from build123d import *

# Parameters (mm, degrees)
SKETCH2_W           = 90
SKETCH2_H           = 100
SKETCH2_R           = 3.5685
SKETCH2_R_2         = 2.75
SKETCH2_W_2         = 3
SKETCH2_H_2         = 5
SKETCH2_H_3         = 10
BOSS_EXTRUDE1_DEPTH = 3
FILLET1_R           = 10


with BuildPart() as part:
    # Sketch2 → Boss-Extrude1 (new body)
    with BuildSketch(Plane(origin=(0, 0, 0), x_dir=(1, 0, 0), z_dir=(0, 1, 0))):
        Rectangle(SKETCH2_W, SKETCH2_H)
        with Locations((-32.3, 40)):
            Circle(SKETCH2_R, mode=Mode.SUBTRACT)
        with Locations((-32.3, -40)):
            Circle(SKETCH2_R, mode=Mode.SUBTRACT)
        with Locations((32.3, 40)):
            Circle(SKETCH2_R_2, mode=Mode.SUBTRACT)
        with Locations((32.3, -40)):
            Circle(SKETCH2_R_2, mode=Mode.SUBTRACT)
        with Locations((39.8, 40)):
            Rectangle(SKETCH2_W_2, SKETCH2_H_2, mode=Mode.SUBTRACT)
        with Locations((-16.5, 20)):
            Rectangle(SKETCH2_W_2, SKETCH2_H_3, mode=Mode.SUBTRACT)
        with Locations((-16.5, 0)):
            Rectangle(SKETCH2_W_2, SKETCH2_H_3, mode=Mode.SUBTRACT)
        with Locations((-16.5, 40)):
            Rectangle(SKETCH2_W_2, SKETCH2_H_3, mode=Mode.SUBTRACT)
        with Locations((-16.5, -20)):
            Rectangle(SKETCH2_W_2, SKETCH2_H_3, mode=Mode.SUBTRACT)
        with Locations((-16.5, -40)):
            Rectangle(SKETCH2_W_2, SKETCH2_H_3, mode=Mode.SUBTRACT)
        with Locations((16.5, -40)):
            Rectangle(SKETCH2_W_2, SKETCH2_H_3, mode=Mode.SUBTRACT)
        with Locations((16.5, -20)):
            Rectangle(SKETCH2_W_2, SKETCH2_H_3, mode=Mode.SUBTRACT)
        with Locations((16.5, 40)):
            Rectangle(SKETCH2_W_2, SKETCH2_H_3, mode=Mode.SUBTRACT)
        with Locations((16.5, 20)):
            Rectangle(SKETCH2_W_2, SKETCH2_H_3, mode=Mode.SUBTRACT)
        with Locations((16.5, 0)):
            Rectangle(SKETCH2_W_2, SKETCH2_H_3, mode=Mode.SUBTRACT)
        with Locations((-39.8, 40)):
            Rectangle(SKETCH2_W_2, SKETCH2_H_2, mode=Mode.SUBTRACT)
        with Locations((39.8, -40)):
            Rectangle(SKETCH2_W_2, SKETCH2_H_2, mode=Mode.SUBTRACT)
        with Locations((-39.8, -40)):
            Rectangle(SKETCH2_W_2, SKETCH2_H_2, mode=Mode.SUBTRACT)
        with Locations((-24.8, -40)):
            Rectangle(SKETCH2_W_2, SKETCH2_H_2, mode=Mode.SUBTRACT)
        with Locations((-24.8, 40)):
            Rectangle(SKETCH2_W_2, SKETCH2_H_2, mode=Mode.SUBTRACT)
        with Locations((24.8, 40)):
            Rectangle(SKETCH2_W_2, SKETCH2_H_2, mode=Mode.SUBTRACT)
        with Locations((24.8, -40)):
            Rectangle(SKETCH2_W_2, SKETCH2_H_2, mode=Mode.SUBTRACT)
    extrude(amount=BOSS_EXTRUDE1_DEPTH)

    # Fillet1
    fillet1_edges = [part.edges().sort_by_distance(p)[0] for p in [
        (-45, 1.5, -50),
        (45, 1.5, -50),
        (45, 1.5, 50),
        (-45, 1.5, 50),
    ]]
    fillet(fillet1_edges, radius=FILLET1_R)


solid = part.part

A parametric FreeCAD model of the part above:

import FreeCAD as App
import Part
import Sketcher
Q = App.Units.Quantity


def edges_at(feature, points):
    """Names of the edges that pass closest to the given points."""
    edges = feature.Shape.Edges
    near = lambda p: min(range(len(edges)), key=lambda i: edges[i].distToShape(Part.Vertex(*p))[0])
    return sorted({f"Edge{near(p) + 1}" for p in points})


def add_polygon(sketch, points):
    """Adds a closed chain of lines whose ends are joined by coincident constraints."""
    first, n = sketch.GeometryCount, len(points)
    for a, b in zip(points, points[1:] + points[:1]):
        sketch.addGeometry(Part.LineSegment(App.Vector(*a, 0), App.Vector(*b, 0)), False)
    for i in range(n):
        sketch.addConstraint(Sketcher.Constraint("Coincident", first + i, 2, first + (i + 1) % n, 1))

doc = App.newDocument("Part")
params = doc.addObject("Spreadsheet::Sheet", "Params")
for row, (alias, value) in enumerate([
    ("sketch1_diameter", "5.5 mm"),
    ("sketch1_width", "90 mm"),
    ("sketch1_width2", "3 mm"),
    ("sketch1_height", "100 mm"),
    ("sketch1_height2", "5 mm"),
    ("pad1_length", "3 mm"),
    ("fillet_radius", "10 mm"),
], start=1):
    params.set(f"A{row}", alias)
    params.set(f"B{row}", "=" + value)
    params.setAlias(f"B{row}", alias)

body = doc.addObject("PartDesign::Body", "Body")

# Sketch on XZ plane
sketch1 = doc.addObject("Sketcher::SketchObject", "Sketch")
body.addObject(sketch1)
sketch1.AttachmentSupport = (doc.XZ_Plane, [""])
sketch1.MapMode = "FlatFace"
add_polygon(sketch1, [(-45, -50), (-45, 50), (45, 50), (45, -50)])  # lines 0-3
add_polygon(sketch1, [(-38.3, 42.5), (-41.3, 42.5), (-41.3, 37.5), (-38.3, 37.5)])  # lines 4-7
sketch1.addGeometry(Part.Circle(App.Vector(-32.3, 40, 0), App.Vector(0, 0, 1), 3.6), False)  # 8
add_polygon(sketch1, [(-23.3, 42.5), (-26.3, 42.5), (-26.3, 37.5), (-23.3, 37.5)])  # lines 9-12
add_polygon(sketch1, [(-15, 45), (-18, 45), (-18, 35), (-15, 35)])  # lines 13-16
add_polygon(sketch1, [(-15, 25), (-18, 25), (-18, 15), (-15, 15)])  # lines 17-20
add_polygon(sketch1, [(18, 45), (15, 45), (15, 35), (18, 35)])  # lines 21-24
add_polygon(sketch1, [(26.3, 42.5), (23.3, 42.5), (23.3, 37.5), (26.3, 37.5)])  # lines 25-28
sketch1.addGeometry(Part.Circle(App.Vector(32.3, 40, 0), App.Vector(0, 0, 1), 2.8), False)  # 29
add_polygon(sketch1, [(41.3, 42.5), (38.3, 42.5), (38.3, 37.5), (41.3, 37.5)])  # lines 30-33
add_polygon(sketch1, [(18, 25), (15, 25), (15, 15), (18, 15)])  # lines 34-37
add_polygon(sketch1, [(-15, 5), (-18, 5), (-18, -5), (-15, -5)])  # lines 38-41
add_polygon(sketch1, [(-15, -15), (-18, -15), (-18, -25), (-15, -25)])  # lines 42-45
add_polygon(sketch1, [(-38.3, -37.5), (-41.3, -37.5), (-41.3, -42.5), (-38.3, -42.5)])  # lines 46-49
sketch1.addGeometry(Part.Circle(App.Vector(-32.3, -40, 0), App.Vector(0, 0, 1), 3.6), False)  # 50
add_polygon(sketch1, [(-23.3, -37.5), (-26.3, -37.5), (-26.3, -42.5), (-23.3, -42.5)])  # lines 51-54
add_polygon(sketch1, [(-15, -35), (-18, -35), (-18, -45), (-15, -45)])  # lines 55-58
add_polygon(sketch1, [(18, 5), (15, 5), (15, -5), (18, -5)])  # lines 59-62
add_polygon(sketch1, [(18, -15), (15, -15), (15, -25), (18, -25)])  # lines 63-66
add_polygon(sketch1, [(18, -35), (15, -35), (15, -45), (18, -45)])  # lines 67-70
add_polygon(sketch1, [(26.3, -37.5), (23.3, -37.5), (23.3, -42.5), (26.3, -42.5)])  # lines 71-74
sketch1.addGeometry(Part.Circle(App.Vector(32.3, -40, 0), App.Vector(0, 0, 1), 2.8), False)  # 75
add_polygon(sketch1, [(41.3, -37.5), (38.3, -37.5), (38.3, -42.5), (41.3, -42.5)])  # lines 76-79
sketch1.addConstraint([
    Sketcher.Constraint("Vertical", 0),
    Sketcher.Constraint("Horizontal", 1),
    Sketcher.Constraint("Vertical", 2),
    Sketcher.Constraint("Horizontal", 3),
    Sketcher.Constraint("Horizontal", 4),
    Sketcher.Constraint("Vertical", 5),
    Sketcher.Constraint("Horizontal", 6),
    Sketcher.Constraint("Vertical", 7),
    Sketcher.Constraint("Horizontal", 9),
    Sketcher.Constraint("Vertical", 10),
    Sketcher.Constraint("Horizontal", 11),
    Sketcher.Constraint("Vertical", 12),
    Sketcher.Constraint("Horizontal", 13),
    Sketcher.Constraint("Vertical", 14),
    Sketcher.Constraint("Horizontal", 15),
    Sketcher.Constraint("Vertical", 16),
    Sketcher.Constraint("Horizontal", 17),
    Sketcher.Constraint("Vertical", 18),
    Sketcher.Constraint("Horizontal", 19),
    Sketcher.Constraint("Vertical", 20),
    Sketcher.Constraint("Horizontal", 21),
    Sketcher.Constraint("Vertical", 22),
    Sketcher.Constraint("Horizontal", 23),
    Sketcher.Constraint("Vertical", 24),
    Sketcher.Constraint("Horizontal", 25),
    Sketcher.Constraint("Vertical", 26),
    Sketcher.Constraint("Horizontal", 27),
    Sketcher.Constraint("Vertical", 28),
    Sketcher.Constraint("Horizontal", 30),
    Sketcher.Constraint("Vertical", 31),
    Sketcher.Constraint("Horizontal", 32),
    Sketcher.Constraint("Vertical", 33),
    Sketcher.Constraint("Horizontal", 34),
    Sketcher.Constraint("Vertical", 35),
    Sketcher.Constraint("Horizontal", 36),
    Sketcher.Constraint("Vertical", 37),
    Sketcher.Constraint("Horizontal", 38),
    Sketcher.Constraint("Vertical", 39),
    Sketcher.Constraint("Horizontal", 40),
    Sketcher.Constraint("Vertical", 41),
    Sketcher.Constraint("Horizontal", 42),
    Sketcher.Constraint("Vertical", 43),
    Sketcher.Constraint("Horizontal", 44),
    Sketcher.Constraint("Vertical", 45),
    Sketcher.Constraint("Horizontal", 46),
    Sketcher.Constraint("Vertical", 47),
    Sketcher.Constraint("Horizontal", 48),
    Sketcher.Constraint("Vertical", 49),
    Sketcher.Constraint("Horizontal", 51),
    Sketcher.Constraint("Vertical", 52),
    Sketcher.Constraint("Horizontal", 53),
    Sketcher.Constraint("Vertical", 54),
    Sketcher.Constraint("Horizontal", 55),
    Sketcher.Constraint("Vertical", 56),
    Sketcher.Constraint("Horizontal", 57),
    Sketcher.Constraint("Vertical", 58),
    Sketcher.Constraint("Horizontal", 59),
    Sketcher.Constraint("Vertical", 60),
    Sketcher.Constraint("Horizontal", 61),
    Sketcher.Constraint("Vertical", 62),
    Sketcher.Constraint("Horizontal", 63),
    Sketcher.Constraint("Vertical", 64),
    Sketcher.Constraint("Horizontal", 65),
    Sketcher.Constraint("Vertical", 66),
    Sketcher.Constraint("Horizontal", 67),
    Sketcher.Constraint("Vertical", 68),
    Sketcher.Constraint("Horizontal", 69),
    Sketcher.Constraint("Vertical", 70),
    Sketcher.Constraint("Horizontal", 71),
    Sketcher.Constraint("Vertical", 72),
    Sketcher.Constraint("Horizontal", 73),
    Sketcher.Constraint("Vertical", 74),
    Sketcher.Constraint("Horizontal", 76),
    Sketcher.Constraint("Vertical", 77),
    Sketcher.Constraint("Horizontal", 78),
    Sketcher.Constraint("Vertical", 79),
    Sketcher.Constraint("Equal", 8, 50),
    Sketcher.Constraint("Equal", 29, 75),
    Sketcher.Constraint("Symmetric", 29, 3, 50, 3, -1, 1),
    Sketcher.Constraint("Symmetric", 8, 3, 75, 3, -1, 1),
    Sketcher.Constraint("Symmetric", 0, 2, 2, 2, -1, 1),
    Sketcher.Constraint("Symmetric", 36, 2, 42, 2, -1, 1),
    Sketcher.Constraint("Symmetric", 34, 2, 44, 2, -1, 1),
    Sketcher.Constraint("Symmetric", 32, 2, 46, 2, -1, 1),
    Sketcher.Constraint("Symmetric", 30, 2, 48, 2, -1, 1),
    Sketcher.Constraint("Symmetric", 27, 2, 51, 2, -1, 1),
    Sketcher.Constraint("Symmetric", 25, 2, 53, 2, -1, 1),
    Sketcher.Constraint("Symmetric", 23, 2, 55, 2, -1, 1),
    Sketcher.Constraint("Symmetric", 21, 2, 57, 2, -1, 1),
    Sketcher.Constraint("Symmetric", 40, 2, 59, 2, -1, 1),
    Sketcher.Constraint("Symmetric", 38, 2, 61, 2, -1, 1),
    Sketcher.Constraint("Symmetric", 19, 2, 63, 2, -1, 1),
    Sketcher.Constraint("Symmetric", 17, 2, 65, 2, -1, 1),
    Sketcher.Constraint("Symmetric", 15, 2, 67, 2, -1, 1),
    Sketcher.Constraint("Symmetric", 13, 2, 69, 2, -1, 1),
    Sketcher.Constraint("Symmetric", 11, 2, 71, 2, -1, 1),
    Sketcher.Constraint("Symmetric", 9, 2, 73, 2, -1, 1),
    Sketcher.Constraint("Symmetric", 6, 2, 76, 2, -1, 1),
    Sketcher.Constraint("Symmetric", 4, 2, 78, 2, -1, 1),
    Sketcher.Constraint("Symmetric", 8, 3, 29, 3, -2),
    Sketcher.Constraint("Symmetric", 16, 2, 21, 2, -2),
    Sketcher.Constraint("Symmetric", 14, 2, 23, 2, -2),
    Sketcher.Constraint("Symmetric", 12, 2, 25, 2, -2),
    Sketcher.Constraint("Symmetric", 10, 2, 27, 2, -2),
    Sketcher.Constraint("Symmetric", 7, 2, 30, 2, -2),
    Sketcher.Constraint("Symmetric", 5, 2, 32, 2, -2),
    Sketcher.Constraint("Symmetric", 20, 2, 34, 2, -2),
    Sketcher.Constraint("Symmetric", 18, 2, 36, 2, -2),
    Sketcher.Constraint("Horizontal", 7, 2, 9, 2),
    Sketcher.Constraint("Horizontal", 6, 2, 10, 2),
    Sketcher.Constraint("Horizontal", 41, 2, 59, 2),
    Sketcher.Constraint("Vertical", 14, 2, 17, 2),
    Sketcher.Constraint("Vertical", 16, 2, 19, 2),
    Sketcher.Constraint("Vertical", 18, 2, 38, 2),
    Sketcher.Constraint("Vertical", 20, 2, 40, 2),
    Sketcher.Constraint("Equal", 6, 9),
    Sketcher.Constraint("Equal", 11, 13),
    Sketcher.Constraint("Equal", 16, 18),
    Sketcher.Constraint("Equal", 37, 39),
    Sketcher.Constraint("Diameter", 29, Q("5.5 mm")),
    Sketcher.Constraint("DistanceX", 1, 1, 1, 2, Q("90 mm")),
    Sketcher.Constraint("DistanceX", 4, 2, 4, 1, Q("3 mm")),
    Sketcher.Constraint("DistanceY", 0, 1, 0, 2, Q("100 mm")),
    Sketcher.Constraint("DistanceY", 5, 2, 5, 1, Q("5 mm")),
    Sketcher.Constraint("DistanceY", 14, 2, 14, 1, Q("10 mm")),
    Sketcher.Constraint("Diameter", 8, Q("7.137 mm")),
    Sketcher.Constraint("DistanceY", -1, 1, 8, 3, Q("40 mm")),
    Sketcher.Constraint("DistanceX", 13, 2, -1, 1, Q("18 mm")),
    Sketcher.Constraint("DistanceY", -1, 1, 13, 2, Q("45 mm")),
    Sketcher.Constraint("DistanceY", -1, 1, 17, 2, Q("25 mm")),
    Sketcher.Constraint("DistanceX", 8, 3, -1, 1, Q("32.3 mm")),
    Sketcher.Constraint("DistanceX", 4, 2, -1, 1, Q("41.3 mm")),
    Sketcher.Constraint("DistanceY", -1, 1, 4, 2, Q("42.5 mm")),
    Sketcher.Constraint("DistanceX", 9, 2, -1, 1, Q("26.3 mm")),
])
sketch1.setExpression("Constraints[195]", "Params.sketch1_diameter")
sketch1.setExpression("Constraints[196]", "Params.sketch1_width")
sketch1.setExpression("Constraints[197]", "Params.sketch1_width2")
sketch1.setExpression("Constraints[198]", "Params.sketch1_height")
sketch1.setExpression("Constraints[199]", "Params.sketch1_height2")
pad1 = doc.addObject("PartDesign::Pad", "Pad")
body.addObject(pad1)
pad1.Profile = sketch1
pad1.setExpression("Length", "Params.pad1_length")
pad1.Reversed = True
doc.recompute()

fillet = doc.addObject("PartDesign::Fillet", "Fillet")
body.addObject(fillet)
fillet.Base = (pad1, edges_at(pad1, [
    (-45, 1.5, -50),
    (45, 1.5, -50),
    (45, 1.5, 50),
    (-45, 1.5, 50),
]))
fillet.setExpression("Radius", "Params.fillet_radius")

doc.recompute()
